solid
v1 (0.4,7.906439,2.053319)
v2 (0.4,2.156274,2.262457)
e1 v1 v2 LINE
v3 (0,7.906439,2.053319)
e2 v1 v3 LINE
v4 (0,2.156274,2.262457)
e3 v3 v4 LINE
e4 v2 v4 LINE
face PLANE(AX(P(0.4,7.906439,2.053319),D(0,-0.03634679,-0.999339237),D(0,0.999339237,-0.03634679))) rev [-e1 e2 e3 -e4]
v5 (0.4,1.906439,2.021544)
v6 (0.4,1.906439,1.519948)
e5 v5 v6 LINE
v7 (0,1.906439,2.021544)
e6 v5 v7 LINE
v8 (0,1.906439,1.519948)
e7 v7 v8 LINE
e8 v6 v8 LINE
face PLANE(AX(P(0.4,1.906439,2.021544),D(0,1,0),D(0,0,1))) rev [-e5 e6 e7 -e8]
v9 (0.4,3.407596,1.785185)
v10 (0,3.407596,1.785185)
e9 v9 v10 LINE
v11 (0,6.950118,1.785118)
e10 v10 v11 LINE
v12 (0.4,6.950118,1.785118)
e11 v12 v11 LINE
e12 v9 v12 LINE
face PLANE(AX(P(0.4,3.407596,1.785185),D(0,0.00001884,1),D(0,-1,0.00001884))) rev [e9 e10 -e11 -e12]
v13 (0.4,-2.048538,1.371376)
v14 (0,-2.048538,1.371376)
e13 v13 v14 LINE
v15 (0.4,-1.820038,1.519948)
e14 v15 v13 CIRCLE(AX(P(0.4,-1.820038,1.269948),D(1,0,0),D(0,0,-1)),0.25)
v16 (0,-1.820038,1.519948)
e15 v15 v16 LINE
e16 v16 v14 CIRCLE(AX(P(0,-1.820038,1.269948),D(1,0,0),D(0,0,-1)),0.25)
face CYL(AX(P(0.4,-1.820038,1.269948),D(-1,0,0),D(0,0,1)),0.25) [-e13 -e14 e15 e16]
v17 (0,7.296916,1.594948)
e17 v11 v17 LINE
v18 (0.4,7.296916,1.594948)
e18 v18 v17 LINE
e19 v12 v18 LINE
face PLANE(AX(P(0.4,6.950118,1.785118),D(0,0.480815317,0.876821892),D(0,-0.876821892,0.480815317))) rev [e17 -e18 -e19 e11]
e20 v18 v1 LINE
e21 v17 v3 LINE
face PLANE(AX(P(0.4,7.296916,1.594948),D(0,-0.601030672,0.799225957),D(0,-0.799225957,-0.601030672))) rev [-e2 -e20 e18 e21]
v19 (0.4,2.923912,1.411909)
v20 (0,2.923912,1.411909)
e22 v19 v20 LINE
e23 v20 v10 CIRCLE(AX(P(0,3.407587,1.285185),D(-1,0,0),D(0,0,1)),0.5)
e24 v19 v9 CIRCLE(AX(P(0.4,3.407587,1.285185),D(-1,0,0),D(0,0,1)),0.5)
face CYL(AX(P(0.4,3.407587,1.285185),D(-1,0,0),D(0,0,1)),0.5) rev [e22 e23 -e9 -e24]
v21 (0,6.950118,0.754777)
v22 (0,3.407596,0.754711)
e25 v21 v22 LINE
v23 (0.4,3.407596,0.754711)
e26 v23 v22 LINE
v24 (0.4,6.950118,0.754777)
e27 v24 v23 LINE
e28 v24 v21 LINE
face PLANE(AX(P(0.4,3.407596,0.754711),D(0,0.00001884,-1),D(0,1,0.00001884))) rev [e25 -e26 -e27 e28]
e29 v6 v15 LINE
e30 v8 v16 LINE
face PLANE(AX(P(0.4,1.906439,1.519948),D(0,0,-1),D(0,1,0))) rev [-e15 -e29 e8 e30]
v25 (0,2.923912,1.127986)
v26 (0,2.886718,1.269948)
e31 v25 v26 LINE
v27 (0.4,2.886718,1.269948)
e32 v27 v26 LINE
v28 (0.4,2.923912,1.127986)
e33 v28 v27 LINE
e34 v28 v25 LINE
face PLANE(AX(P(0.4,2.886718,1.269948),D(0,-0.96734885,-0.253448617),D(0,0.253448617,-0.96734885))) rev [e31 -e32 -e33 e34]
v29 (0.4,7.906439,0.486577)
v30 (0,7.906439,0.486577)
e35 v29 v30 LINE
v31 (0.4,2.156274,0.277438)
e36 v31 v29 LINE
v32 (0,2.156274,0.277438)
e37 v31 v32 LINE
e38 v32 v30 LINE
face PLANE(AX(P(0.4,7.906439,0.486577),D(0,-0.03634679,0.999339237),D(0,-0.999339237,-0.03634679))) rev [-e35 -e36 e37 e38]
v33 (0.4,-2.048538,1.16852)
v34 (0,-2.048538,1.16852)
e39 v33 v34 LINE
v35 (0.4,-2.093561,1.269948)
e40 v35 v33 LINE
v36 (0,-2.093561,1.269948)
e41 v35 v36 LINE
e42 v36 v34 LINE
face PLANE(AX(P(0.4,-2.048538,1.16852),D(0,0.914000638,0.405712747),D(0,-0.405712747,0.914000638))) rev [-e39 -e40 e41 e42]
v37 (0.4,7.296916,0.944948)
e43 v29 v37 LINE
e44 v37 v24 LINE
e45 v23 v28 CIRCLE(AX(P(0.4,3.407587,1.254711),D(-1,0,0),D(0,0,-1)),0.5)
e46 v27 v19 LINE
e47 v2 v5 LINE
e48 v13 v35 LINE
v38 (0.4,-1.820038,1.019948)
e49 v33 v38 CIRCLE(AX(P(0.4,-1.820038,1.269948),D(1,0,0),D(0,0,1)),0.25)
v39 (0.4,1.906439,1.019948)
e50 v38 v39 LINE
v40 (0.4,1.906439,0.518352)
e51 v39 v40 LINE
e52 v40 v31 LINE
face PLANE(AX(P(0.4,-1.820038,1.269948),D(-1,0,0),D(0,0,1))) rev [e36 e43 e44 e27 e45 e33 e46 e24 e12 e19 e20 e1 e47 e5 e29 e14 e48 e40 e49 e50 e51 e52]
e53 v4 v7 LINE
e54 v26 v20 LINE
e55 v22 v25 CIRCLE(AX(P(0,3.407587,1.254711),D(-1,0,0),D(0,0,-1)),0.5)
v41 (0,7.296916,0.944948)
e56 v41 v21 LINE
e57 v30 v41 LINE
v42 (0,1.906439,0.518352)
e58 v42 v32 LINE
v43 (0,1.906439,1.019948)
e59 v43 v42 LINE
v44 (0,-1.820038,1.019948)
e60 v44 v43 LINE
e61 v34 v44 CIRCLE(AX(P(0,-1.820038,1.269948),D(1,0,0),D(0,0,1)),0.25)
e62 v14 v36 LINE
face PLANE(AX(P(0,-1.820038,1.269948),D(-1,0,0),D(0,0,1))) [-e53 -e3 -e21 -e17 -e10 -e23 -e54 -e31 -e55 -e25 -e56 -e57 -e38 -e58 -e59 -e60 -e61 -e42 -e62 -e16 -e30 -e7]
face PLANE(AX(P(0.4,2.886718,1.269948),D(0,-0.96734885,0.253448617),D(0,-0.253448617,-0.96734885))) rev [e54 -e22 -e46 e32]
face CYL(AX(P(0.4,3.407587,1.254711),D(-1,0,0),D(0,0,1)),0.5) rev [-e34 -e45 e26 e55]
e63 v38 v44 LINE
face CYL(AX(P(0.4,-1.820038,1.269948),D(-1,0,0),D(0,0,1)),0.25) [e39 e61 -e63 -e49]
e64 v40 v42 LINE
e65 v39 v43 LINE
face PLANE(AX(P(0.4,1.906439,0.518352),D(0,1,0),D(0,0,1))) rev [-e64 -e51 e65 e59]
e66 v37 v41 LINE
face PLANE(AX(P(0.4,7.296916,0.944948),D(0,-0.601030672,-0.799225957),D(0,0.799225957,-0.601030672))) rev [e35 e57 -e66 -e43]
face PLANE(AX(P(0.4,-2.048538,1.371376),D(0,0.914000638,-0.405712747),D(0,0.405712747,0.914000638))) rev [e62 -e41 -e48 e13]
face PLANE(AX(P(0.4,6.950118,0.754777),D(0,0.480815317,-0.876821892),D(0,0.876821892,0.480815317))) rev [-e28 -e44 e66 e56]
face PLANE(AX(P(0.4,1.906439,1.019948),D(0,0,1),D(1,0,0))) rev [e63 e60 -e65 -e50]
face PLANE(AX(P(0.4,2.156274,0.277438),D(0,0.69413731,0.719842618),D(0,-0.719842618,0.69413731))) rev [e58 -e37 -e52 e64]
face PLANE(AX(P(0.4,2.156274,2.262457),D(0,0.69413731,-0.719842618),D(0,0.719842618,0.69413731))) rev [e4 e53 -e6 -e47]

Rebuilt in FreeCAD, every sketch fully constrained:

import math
import FreeCAD as App
import Part
import Sketcher

V = App.Vector
Q = App.Units.Quantity

doc = App.newDocument("Part")
params = doc.addObject("Spreadsheet::Sheet", "Params")
for row, (alias, value) in enumerate([
    ("sketch1_radius", "0.5 mm"),
    ("sketch1_radius2", "0.25 mm"),
    ("pad1_length", "0.4 mm"),
], start=1):
    params.set(f"A{row}", alias)
    params.set(f"B{row}", "=" + value)
    params.setAlias(f"B{row}", alias)

body = doc.addObject("PartDesign::Body", "Body")

# Sketch on YZ plane
sketch1 = body.newObject("Sketcher::SketchObject", "Sketch")
sketch1.AttachmentSupport = (doc.getObject("YZ_Plane"), [""])
sketch1.MapMode = "FlatFace"
sketch1.addGeometry(Part.LineSegment(V(2.16, 0.28, 0), V(7.91, 0.49, 0)), False)
sketch1.addGeometry(Part.LineSegment(V(7.91, 0.49, 0), V(7.3, 0.94, 0)), False)
sketch1.addGeometry(Part.LineSegment(V(7.3, 0.94, 0), V(6.95, 0.75, 0)), False)
sketch1.addGeometry(Part.LineSegment(V(6.95, 0.75, 0), V(3.41, 0.75, 0)), False)
sketch1.addGeometry(Part.ArcOfCircle(Part.Circle(V(3.41, 1.25, 0), V(0, 0, 1), 0.5), math.radians(-165), math.radians(-90)), False)
sketch1.addGeometry(Part.LineSegment(V(2.92, 1.13, 0), V(2.89, 1.27, 0)), False)
sketch1.addGeometry(Part.LineSegment(V(2.89, 1.27, 0), V(2.92, 1.41, 0)), False)
sketch1.addGeometry(Part.ArcOfCircle(Part.Circle(V(3.41, 1.29, 0), V(0, 0, 1), 0.5), math.radians(90), math.radians(165)), False)
sketch1.addGeometry(Part.LineSegment(V(3.41, 1.79, 0), V(6.95, 1.79, 0)), False)
sketch1.addGeometry(Part.LineSegment(V(6.95, 1.79, 0), V(7.3, 1.59, 0)), False)
sketch1.addGeometry(Part.LineSegment(V(7.3, 1.59, 0), V(7.91, 2.05, 0)), False)
sketch1.addGeometry(Part.LineSegment(V(7.91, 2.05, 0), V(2.16, 2.26, 0)), False)
sketch1.addGeometry(Part.LineSegment(V(2.16, 2.26, 0), V(1.91, 2.02, 0)), False)
sketch1.addGeometry(Part.LineSegment(V(1.91, 2.02, 0), V(1.91, 1.52, 0)), False)
sketch1.addGeometry(Part.LineSegment(V(1.91, 1.52, 0), V(-1.82, 1.52, 0)), False)
sketch1.addGeometry(Part.ArcOfCircle(Part.Circle(V(-1.82, 1.27, 0), V(0, 0, 1), 0.25), math.radians(90), math.radians(156)), False)
sketch1.addGeometry(Part.LineSegment(V(-2.05, 1.37, 0), V(-2.09, 1.27, 0)), False)
sketch1.addGeometry(Part.LineSegment(V(-2.09, 1.27, 0), V(-2.05, 1.17, 0)), False)
sketch1.addGeometry(Part.ArcOfCircle(Part.Circle(V(-1.82, 1.27, 0), V(0, 0, 1), 0.25), math.radians(-156), math.radians(-90)), False)
sketch1.addGeometry(Part.LineSegment(V(-1.82, 1.02, 0), V(1.91, 1.02, 0)), False)
sketch1.addGeometry(Part.LineSegment(V(1.91, 1.02, 0), V(1.91, 0.52, 0)), False)
sketch1.addGeometry(Part.LineSegment(V(1.91, 0.52, 0), V(2.16, 0.28, 0)), False)
sketch1.addConstraint(Sketcher.Constraint("Coincident", 0, 2, 1, 1))
sketch1.addConstraint(Sketcher.Constraint("Coincident", 1, 2, 2, 1))
sketch1.addConstraint(Sketcher.Constraint("Coincident", 2, 2, 3, 1))
sketch1.addConstraint(Sketcher.Constraint("Tangent", 3, 2, 4, 2))
sketch1.addConstraint(Sketcher.Constraint("Tangent", 4, 1, 5, 1))
sketch1.addConstraint(Sketcher.Constraint("Coincident", 5, 2, 6, 1))
sketch1.addConstraint(Sketcher.Constraint("Tangent", 6, 2, 7, 2))
sketch1.addConstraint(Sketcher.Constraint("Tangent", 7, 1, 8, 1))
sketch1.addConstraint(Sketcher.Constraint("Coincident", 8, 2, 9, 1))
sketch1.addConstraint(Sketcher.Constraint("Coincident", 9, 2, 10, 1))
sketch1.addConstraint(Sketcher.Constraint("Coincident", 10, 2, 11, 1))
sketch1.addConstraint(Sketcher.Constraint("Coincident", 11, 2, 12, 1))
sketch1.addConstraint(Sketcher.Constraint("Coincident", 12, 2, 13, 1))
sketch1.addConstraint(Sketcher.Constraint("Coincident", 13, 2, 14, 1))
sketch1.addConstraint(Sketcher.Constraint("Tangent", 14, 2, 15, 1))
sketch1.addConstraint(Sketcher.Constraint("Tangent", 15, 2, 16, 1))
sketch1.addConstraint(Sketcher.Constraint("Coincident", 16, 2, 17, 1))
sketch1.addConstraint(Sketcher.Constraint("Tangent", 17, 2, 18, 1))
sketch1.addConstraint(Sketcher.Constraint("Tangent", 18, 2, 19, 1))
sketch1.addConstraint(Sketcher.Constraint("Coincident", 19, 2, 20, 1))
sketch1.addConstraint(Sketcher.Constraint("Coincident", 20, 2, 21, 1))
sketch1.addConstraint(Sketcher.Constraint("Coincident", 21, 2, 0, 1))
sketch1.addConstraint(Sketcher.Constraint("Vertical", 13))
sketch1.addConstraint(Sketcher.Constraint("Horizontal", 14))
sketch1.addConstraint(Sketcher.Constraint("Horizontal", 19))
sketch1.addConstraint(Sketcher.Constraint("Vertical", 20))
sketch1.addConstraint(Sketcher.Constraint("Coincident", 18, 3, 15, 3))
sketch1.addConstraint(Sketcher.Constraint("Equal", 4, 7))
sketch1.addConstraint(Sketcher.Constraint("Equal", 15, 18))
sketch1.addConstraint(Sketcher.Constraint("Horizontal", 18, 3, 5, 2))
sketch1.addConstraint(Sketcher.Constraint("Horizontal", 5, 2, 16, 2))
sketch1.addConstraint(Sketcher.Constraint("Vertical", 4, 3, 7, 3))
sketch1.addConstraint(Sketcher.Constraint("Vertical", 4, 1, 6, 2))
sketch1.addConstraint(Sketcher.Constraint("Vertical", 3, 2, 7, 1))
sketch1.addConstraint(Sketcher.Constraint("Vertical", 2, 2, 8, 2))
sketch1.addConstraint(Sketcher.Constraint("Vertical", 1, 2, 9, 2))
sketch1.addConstraint(Sketcher.Constraint("Vertical", 0, 2, 10, 2))
sketch1.addConstraint(Sketcher.Constraint("Vertical", 13, 2, 19, 2))
sketch1.addConstraint(Sketcher.Constraint("Vertical", 11, 2, 21, 2))
sketch1.addConstraint(Sketcher.Constraint("Equal", 13, 20))
sketch1.addConstraint(Sketcher.Constraint("Equal", 2, 9))
sketch1.addConstraint(Sketcher.Constraint("Equal", 1, 10))
sketch1.addConstraint(Sketcher.Constraint("Equal", 0, 11))
sketch1.addConstraint(Sketcher.Constraint("Radius", 4, Q("0.5 mm")))
sketch1.addConstraint(Sketcher.Constraint("Radius", 15, Q("0.25 mm")))
sketch1.addConstraint(Sketcher.Constraint("DistanceX", 16, 2, 13, 2, Q("4 mm")))
sketch1.addConstraint(Sketcher.Constraint("DistanceY", 1, 2, 9, 2, Q("0.65 mm")))
sketch1.addConstraint(Sketcher.Constraint("DistanceY", 0, 2, 2, 2, Q("0.268201 mm")))
sketch1.addConstraint(Sketcher.Constraint("DistanceY", 4, 1, 7, 3, Q("0.157199 mm")))
sketch1.addConstraint(Sketcher.Constraint("DistanceX", 5, 2, 2, 2, Q("4.0634 mm")))
sketch1.addConstraint(Sketcher.Constraint("DistanceX", 15, 2, 15, 3, Q("0.2285 mm")))
sketch1.addConstraint(Sketcher.Constraint("Distance", 12, Q("0.347069 mm")))
sketch1.addConstraint(Sketcher.Constraint("DistanceY", 13, 2, 13, 1, Q("0.501596 mm")))
sketch1.addConstraint(Sketcher.Constraint("DistanceY", -1, 1, 4, 3, Q("1.254711 mm")))
sketch1.addConstraint(Sketcher.Constraint("DistanceX", -1, 1, 0, 2, Q("7.906439 mm")))
sketch1.addConstraint(Sketcher.Constraint("DistanceX", -1, 1, 2, 2, Q("6.950118 mm")))
sketch1.addConstraint(Sketcher.Constraint("DistanceY", -1, 1, 8, 2, Q("1.785118 mm")))
sketch1.addConstraint(Sketcher.Constraint("DistanceX", -1, 1, 12, 2, Q("1.906439 mm")))
sketch1.addConstraint(Sketcher.Constraint("DistanceY", -1, 1, 17, 2, Q("1.16852 mm")))
sketch1.addConstraint(Sketcher.Constraint("DistanceY", -1, 1, 21, 2, Q("0.277438 mm")))
sketch1.addConstraint(Sketcher.Constraint("DistanceX", 4, 3, 1, 2, Q("3.889329 mm")))
sketch1.setExpression("Constraints[43]", "Params.sketch1_radius")
sketch1.setExpression("Constraints[44]", "Params.sketch1_radius2")
pad1 = body.newObject("PartDesign::Pad", "Pad")
pad1.Profile = sketch1
pad1.setExpression("Length", "Params.pad1_length")

doc.recompute()
